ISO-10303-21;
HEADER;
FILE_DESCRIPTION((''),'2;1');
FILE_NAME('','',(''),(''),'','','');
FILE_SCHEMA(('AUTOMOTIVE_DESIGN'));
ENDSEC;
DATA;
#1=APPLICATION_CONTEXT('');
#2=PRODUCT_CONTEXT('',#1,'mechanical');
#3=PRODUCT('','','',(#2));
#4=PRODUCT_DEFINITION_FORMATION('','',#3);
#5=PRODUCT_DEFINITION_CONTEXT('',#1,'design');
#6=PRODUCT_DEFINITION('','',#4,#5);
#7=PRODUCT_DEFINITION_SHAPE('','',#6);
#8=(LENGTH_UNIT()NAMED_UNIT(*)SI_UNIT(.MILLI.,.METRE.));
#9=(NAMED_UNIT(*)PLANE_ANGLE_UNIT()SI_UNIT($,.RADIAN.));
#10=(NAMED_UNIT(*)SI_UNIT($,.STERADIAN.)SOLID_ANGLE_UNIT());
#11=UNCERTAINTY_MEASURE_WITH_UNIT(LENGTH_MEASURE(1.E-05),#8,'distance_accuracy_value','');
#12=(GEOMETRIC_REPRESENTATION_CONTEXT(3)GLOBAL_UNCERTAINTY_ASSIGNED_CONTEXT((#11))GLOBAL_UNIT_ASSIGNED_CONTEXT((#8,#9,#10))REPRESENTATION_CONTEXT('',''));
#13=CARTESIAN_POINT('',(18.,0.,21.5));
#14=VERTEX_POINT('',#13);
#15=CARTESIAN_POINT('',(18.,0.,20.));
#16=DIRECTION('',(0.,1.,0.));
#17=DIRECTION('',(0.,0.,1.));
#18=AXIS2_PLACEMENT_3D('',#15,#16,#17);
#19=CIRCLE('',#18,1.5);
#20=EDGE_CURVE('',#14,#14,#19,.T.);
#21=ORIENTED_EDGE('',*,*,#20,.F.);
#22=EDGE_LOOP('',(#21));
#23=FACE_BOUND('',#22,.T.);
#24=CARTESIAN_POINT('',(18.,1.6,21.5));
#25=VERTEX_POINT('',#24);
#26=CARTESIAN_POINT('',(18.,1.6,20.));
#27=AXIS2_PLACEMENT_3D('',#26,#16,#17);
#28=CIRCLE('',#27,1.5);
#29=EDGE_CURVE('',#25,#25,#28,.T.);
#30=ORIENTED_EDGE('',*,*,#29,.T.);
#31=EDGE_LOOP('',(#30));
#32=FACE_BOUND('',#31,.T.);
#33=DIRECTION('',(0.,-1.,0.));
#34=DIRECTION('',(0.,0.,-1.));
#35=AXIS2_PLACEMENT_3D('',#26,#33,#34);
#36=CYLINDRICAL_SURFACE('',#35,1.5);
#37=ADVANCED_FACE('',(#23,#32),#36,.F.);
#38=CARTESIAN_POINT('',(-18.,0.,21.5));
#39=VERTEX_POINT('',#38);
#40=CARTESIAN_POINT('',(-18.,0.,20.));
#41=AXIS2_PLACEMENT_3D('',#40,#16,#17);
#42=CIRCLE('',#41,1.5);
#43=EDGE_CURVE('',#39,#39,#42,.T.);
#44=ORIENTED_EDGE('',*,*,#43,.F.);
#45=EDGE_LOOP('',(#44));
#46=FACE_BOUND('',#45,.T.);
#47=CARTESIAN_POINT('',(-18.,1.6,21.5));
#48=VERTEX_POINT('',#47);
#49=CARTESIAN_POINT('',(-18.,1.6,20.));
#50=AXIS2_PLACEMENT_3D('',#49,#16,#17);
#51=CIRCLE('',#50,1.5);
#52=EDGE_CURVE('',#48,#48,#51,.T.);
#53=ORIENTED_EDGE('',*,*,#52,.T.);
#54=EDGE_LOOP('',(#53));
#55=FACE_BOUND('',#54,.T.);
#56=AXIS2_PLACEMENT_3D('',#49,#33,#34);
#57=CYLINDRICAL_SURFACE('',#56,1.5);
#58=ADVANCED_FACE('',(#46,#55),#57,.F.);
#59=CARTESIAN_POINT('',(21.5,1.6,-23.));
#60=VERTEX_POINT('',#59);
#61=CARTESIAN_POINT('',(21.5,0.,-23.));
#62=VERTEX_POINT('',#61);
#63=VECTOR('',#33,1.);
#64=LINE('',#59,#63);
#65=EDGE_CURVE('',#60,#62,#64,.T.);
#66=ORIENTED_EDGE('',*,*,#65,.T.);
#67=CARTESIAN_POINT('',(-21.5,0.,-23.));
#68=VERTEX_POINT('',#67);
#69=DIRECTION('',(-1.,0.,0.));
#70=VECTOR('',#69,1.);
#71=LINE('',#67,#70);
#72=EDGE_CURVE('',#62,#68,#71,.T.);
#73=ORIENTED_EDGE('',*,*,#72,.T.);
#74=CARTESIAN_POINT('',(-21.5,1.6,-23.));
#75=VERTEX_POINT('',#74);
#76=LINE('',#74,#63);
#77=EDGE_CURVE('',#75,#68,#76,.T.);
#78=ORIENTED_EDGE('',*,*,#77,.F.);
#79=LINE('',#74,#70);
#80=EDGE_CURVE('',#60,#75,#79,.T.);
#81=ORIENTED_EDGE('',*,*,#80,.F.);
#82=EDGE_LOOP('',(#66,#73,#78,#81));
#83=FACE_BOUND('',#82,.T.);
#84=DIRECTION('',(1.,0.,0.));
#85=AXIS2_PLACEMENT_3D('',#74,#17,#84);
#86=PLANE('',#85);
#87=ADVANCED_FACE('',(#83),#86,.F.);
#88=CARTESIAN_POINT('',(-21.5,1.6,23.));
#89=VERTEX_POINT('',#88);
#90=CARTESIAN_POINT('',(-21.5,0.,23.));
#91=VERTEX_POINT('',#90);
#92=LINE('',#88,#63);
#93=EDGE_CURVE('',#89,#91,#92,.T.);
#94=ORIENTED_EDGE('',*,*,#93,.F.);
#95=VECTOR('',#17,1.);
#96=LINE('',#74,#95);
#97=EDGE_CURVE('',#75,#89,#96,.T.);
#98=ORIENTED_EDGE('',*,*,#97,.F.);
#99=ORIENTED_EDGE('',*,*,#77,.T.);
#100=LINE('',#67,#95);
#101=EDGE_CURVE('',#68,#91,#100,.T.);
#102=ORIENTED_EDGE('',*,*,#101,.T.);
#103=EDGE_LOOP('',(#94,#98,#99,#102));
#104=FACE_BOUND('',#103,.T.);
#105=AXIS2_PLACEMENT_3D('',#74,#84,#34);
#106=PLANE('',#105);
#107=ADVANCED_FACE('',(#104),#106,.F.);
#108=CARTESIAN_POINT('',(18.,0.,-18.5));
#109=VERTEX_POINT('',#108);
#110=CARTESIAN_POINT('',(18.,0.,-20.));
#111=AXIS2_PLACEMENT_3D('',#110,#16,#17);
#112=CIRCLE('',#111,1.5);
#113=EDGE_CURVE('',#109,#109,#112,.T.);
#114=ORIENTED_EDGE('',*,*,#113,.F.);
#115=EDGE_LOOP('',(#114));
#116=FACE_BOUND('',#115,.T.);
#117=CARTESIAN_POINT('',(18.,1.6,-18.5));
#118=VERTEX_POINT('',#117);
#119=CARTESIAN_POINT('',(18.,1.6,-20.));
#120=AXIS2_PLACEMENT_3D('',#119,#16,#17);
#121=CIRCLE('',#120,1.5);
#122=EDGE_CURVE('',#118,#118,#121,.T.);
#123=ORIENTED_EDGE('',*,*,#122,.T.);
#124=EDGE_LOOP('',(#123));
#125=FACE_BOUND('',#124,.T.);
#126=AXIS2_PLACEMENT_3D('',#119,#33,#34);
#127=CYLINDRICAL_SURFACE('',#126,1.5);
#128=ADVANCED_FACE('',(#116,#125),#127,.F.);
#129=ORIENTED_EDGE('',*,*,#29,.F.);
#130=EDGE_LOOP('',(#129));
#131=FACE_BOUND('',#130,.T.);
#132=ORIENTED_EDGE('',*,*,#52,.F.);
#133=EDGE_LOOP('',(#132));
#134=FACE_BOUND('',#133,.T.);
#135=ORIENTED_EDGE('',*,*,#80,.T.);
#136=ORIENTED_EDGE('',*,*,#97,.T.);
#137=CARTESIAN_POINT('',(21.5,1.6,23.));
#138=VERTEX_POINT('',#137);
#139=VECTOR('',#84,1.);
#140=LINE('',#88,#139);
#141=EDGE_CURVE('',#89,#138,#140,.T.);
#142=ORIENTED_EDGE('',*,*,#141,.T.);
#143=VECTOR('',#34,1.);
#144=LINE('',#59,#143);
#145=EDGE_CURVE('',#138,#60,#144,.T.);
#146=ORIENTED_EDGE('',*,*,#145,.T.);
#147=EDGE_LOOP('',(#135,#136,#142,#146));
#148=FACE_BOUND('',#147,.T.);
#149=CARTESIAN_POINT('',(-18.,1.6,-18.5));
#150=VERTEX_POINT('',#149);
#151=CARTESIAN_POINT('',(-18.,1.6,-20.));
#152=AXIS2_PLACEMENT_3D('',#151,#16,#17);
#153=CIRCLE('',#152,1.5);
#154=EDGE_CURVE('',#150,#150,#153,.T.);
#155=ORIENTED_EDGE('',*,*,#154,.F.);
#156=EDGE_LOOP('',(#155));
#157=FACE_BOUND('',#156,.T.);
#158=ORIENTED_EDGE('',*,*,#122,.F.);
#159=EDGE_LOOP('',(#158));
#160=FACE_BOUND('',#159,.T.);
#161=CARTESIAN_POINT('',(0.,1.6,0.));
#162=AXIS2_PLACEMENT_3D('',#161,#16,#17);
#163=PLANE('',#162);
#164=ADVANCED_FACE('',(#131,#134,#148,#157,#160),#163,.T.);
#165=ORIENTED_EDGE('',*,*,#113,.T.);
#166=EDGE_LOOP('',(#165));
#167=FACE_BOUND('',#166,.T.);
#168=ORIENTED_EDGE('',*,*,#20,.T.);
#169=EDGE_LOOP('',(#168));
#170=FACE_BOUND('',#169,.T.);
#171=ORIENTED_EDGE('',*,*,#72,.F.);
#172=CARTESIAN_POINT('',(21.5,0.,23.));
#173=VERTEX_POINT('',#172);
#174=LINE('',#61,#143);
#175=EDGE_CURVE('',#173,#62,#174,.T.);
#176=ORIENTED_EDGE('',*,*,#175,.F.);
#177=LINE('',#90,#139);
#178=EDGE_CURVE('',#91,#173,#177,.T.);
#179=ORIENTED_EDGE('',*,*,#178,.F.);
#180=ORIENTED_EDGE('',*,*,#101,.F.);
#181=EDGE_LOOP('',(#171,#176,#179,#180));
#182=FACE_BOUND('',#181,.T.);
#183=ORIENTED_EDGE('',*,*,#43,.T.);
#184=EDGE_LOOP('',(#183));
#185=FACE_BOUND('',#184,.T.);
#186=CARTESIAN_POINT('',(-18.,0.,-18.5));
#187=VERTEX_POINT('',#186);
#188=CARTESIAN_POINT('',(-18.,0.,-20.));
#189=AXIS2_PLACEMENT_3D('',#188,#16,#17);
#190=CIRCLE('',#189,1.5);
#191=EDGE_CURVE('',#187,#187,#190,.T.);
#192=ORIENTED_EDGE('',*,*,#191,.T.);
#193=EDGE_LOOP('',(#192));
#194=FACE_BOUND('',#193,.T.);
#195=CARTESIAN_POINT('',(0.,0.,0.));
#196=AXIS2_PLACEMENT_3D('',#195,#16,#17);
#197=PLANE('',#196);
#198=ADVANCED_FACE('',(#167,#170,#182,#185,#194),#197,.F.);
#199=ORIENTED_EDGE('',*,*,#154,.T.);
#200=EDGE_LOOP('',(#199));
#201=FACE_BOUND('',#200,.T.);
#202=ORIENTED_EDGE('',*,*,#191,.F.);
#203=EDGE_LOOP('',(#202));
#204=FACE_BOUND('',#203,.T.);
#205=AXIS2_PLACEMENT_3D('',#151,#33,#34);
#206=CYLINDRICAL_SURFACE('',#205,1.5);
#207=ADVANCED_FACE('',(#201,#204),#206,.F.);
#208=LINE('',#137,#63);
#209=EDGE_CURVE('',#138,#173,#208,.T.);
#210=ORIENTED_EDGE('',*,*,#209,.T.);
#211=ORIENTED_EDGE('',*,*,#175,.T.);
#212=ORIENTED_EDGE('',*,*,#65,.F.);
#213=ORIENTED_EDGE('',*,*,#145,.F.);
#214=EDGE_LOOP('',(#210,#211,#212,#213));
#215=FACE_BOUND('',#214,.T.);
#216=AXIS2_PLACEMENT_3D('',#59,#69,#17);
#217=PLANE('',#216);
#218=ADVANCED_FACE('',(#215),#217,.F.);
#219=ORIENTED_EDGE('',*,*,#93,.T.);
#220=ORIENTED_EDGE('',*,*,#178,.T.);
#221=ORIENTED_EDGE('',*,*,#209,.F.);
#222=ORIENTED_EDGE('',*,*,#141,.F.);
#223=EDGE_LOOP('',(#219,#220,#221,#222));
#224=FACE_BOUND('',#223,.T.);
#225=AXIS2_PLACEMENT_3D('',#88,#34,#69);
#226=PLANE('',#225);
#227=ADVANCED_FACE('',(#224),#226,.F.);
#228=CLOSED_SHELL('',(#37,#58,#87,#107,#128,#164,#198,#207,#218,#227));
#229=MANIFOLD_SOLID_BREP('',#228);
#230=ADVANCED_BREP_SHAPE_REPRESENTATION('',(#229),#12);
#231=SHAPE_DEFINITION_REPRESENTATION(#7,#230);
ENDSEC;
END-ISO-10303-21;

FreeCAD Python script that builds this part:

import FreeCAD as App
import Part
import Sketcher
Q = App.Units.Quantity

doc = App.newDocument("Part")
params = doc.addObject("Spreadsheet::Sheet", "Params")
for row, (alias, value) in enumerate([
    ("sketch1_diameter", "3 mm"),
    ("sketch1_width", "43 mm"),
    ("sketch1_height", "46 mm"),
    ("pad1_length", "1.6 mm"),
], start=1):
    params.set(f"A{row}", alias)
    params.set(f"B{row}", "=" + value)
    params.setAlias(f"B{row}", alias)

body = doc.addObject("PartDesign::Body", "Body")

# Sketch on XZ plane
sketch1 = body.newObject("Sketcher::SketchObject", "Sketch")
sketch1.AttachmentSupport = (doc.getObject("XZ_Plane"), [""])
sketch1.MapMode = "FlatFace"
sketch1.addGeometry([
    Part.LineSegment(App.Vector(-21.5, -23, 0), App.Vector(-21.5, 23, 0)),  # 0
    Part.LineSegment(App.Vector(-21.5, 23, 0), App.Vector(21.5, 23, 0)),  # 1
    Part.LineSegment(App.Vector(21.5, 23, 0), App.Vector(21.5, -23, 0)),  # 2
    Part.LineSegment(App.Vector(21.5, -23, 0), App.Vector(-21.5, -23, 0)),  # 3
    Part.Circle(App.Vector(-18, 20, 0), App.Vector(0, 0, 1), 1.5),  # 4
    Part.Circle(App.Vector(18, 20, 0), App.Vector(0, 0, 1), 1.5),  # 5
    Part.Circle(App.Vector(-18, -20, 0), App.Vector(0, 0, 1), 1.5),  # 6
    Part.Circle(App.Vector(18, -20, 0), App.Vector(0, 0, 1), 1.5),  # 7
], False)
sketch1.addConstraint([
    Sketcher.Constraint("Coincident", 0, 2, 1, 1),
    Sketcher.Constraint("Coincident", 1, 2, 2, 1),
    Sketcher.Constraint("Coincident", 2, 2, 3, 1),
    Sketcher.Constraint("Coincident", 3, 2, 0, 1),
    Sketcher.Constraint("Vertical", 0),
    Sketcher.Constraint("Horizontal", 1),
    Sketcher.Constraint("Vertical", 2),
    Sketcher.Constraint("Horizontal", 3),
    Sketcher.Constraint("Equal", 4, 5),
    Sketcher.Constraint("Equal", 5, 6),
    Sketcher.Constraint("Equal", 6, 7),
    Sketcher.Constraint("Symmetric", 5, 3, 6, 3, -1, 1),
    Sketcher.Constraint("Symmetric", 4, 3, 7, 3, -1, 1),
    Sketcher.Constraint("Symmetric", 0, 2, 2, 2, -1, 1),
    Sketcher.Constraint("Symmetric", 4, 3, 5, 3, -2),
    Sketcher.Constraint("Diameter", 4, Q("3 mm")),
    Sketcher.Constraint("DistanceX", 1, 1, 1, 2, Q("43 mm")),
    Sketcher.Constraint("DistanceY", 0, 1, 0, 2, Q("46 mm")),
    Sketcher.Constraint("DistanceX", 4, 3, -1, 1, Q("18 mm")),
    Sketcher.Constraint("DistanceY", -1, 1, 4, 3, Q("20 mm")),
])
sketch1.setExpression("Constraints[15]", "Params.sketch1_diameter")
sketch1.setExpression("Constraints[16]", "Params.sketch1_width")
sketch1.setExpression("Constraints[17]", "Params.sketch1_height")
pad1 = body.newObject("PartDesign::Pad", "Pad")
pad1.Profile = sketch1
pad1.setExpression("Length", "Params.pad1_length")
pad1.Reversed = True

doc.recompute()
